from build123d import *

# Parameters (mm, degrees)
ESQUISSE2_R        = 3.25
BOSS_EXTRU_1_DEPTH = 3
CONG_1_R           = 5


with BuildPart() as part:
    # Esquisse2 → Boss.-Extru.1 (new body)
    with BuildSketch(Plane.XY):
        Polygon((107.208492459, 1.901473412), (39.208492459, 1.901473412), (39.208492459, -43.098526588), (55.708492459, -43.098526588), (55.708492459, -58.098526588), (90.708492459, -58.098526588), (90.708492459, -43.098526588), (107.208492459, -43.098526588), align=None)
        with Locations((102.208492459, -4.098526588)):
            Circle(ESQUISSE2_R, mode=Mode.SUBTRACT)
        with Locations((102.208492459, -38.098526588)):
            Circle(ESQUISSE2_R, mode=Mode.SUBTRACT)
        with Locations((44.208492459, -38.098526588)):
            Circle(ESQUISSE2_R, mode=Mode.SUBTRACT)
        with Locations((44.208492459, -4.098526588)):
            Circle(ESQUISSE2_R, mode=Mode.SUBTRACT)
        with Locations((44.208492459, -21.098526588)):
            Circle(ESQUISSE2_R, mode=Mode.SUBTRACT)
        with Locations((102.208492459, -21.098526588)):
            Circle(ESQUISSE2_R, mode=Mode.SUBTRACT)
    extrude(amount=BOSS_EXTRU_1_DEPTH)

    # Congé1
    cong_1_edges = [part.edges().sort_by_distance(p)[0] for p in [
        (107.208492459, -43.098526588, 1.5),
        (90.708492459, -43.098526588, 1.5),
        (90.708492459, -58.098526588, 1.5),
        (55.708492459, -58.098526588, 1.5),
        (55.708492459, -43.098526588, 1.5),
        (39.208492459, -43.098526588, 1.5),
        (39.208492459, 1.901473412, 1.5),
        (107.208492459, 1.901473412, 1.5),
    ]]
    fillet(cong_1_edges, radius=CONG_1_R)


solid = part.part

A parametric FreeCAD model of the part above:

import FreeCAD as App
import Part
import Sketcher

V = App.Vector
Q = App.Units.Quantity


def edges_at(feature, points):
    """Names of the edges that pass closest to the given points."""
    edges = feature.Shape.Edges
    near = lambda p: min(range(len(edges)), key=lambda i: edges[i].distToShape(Part.Vertex(*p))[0])
    return sorted({f"Edge{near(p) + 1}" for p in points})


def add_polygon(sketch, points):
    """Adds a closed chain of lines whose ends are joined by coincident constraints."""
    first, n = sketch.GeometryCount, len(points)
    for a, b in zip(points, points[1:] + points[:1]):
        sketch.addGeometry(Part.LineSegment(App.Vector(*a, 0), App.Vector(*b, 0)), False)
    for i in range(n):
        sketch.addConstraint(Sketcher.Constraint("Coincident", first + i, 2, first + (i + 1) % n, 1))

doc = App.newDocument("Part")
body = doc.addObject("PartDesign::Body", "Body")

# Sketch on XY plane
sketch1 = body.newObject("Sketcher::SketchObject", "Sketch")
sketch1.AttachmentSupport = (doc.getObject("XY_Plane"), [""])
sketch1.MapMode = "FlatFace"
add_polygon(sketch1, [(107.2, 1.9), (39.2, 1.9), (39.2, -43.1), (55.7, -43.1), (55.7, -58.1), (90.7, -58.1), (90.7, -43.1), (107.2, -43.1)])  # lines 0-7
sketch1.addGeometry(Part.Circle(V(44.2, -38.1, 0), V(0, 0, 1), 3.2), False)  # 8
sketch1.addGeometry(Part.Circle(V(102.2, -38.1, 0), V(0, 0, 1), 3.2), False)  # 9
sketch1.addGeometry(Part.Circle(V(44.2, -21.1, 0), V(0, 0, 1), 3.2), False)  # 10
sketch1.addGeometry(Part.Circle(V(44.2, -4.1, 0), V(0, 0, 1), 3.2), False)  # 11
sketch1.addGeometry(Part.Circle(V(102.2, -21.1, 0), V(0, 0, 1), 3.2), False)  # 12
sketch1.addGeometry(Part.Circle(V(102.2, -4.1, 0), V(0, 0, 1), 3.2), False)  # 13
sketch1.addConstraint([
    Sketcher.Constraint("Horizontal", 0),
    Sketcher.Constraint("Vertical", 1),
    Sketcher.Constraint("Horizontal", 2),
    Sketcher.Constraint("Vertical", 3),
    Sketcher.Constraint("Horizontal", 4),
    Sketcher.Constraint("Vertical", 5),
    Sketcher.Constraint("Horizontal", 6),
    Sketcher.Constraint("Vertical", 7),
    Sketcher.Constraint("Equal", 8, 9),
    Sketcher.Constraint("Equal", 9, 10),
    Sketcher.Constraint("Equal", 10, 11),
    Sketcher.Constraint("Equal", 11, 12),
    Sketcher.Constraint("Equal", 12, 13),
    Sketcher.Constraint("Horizontal", 8, 3, 9, 3),
    Sketcher.Constraint("Horizontal", 10, 3, 12, 3),
    Sketcher.Constraint("Horizontal", 11, 3, 13, 3),
    Sketcher.Constraint("Horizontal", 2, 2, 5, 2),
    Sketcher.Constraint("Vertical", 8, 3, 10, 3),
    Sketcher.Constraint("Vertical", 10, 3, 11, 3),
    Sketcher.Constraint("Vertical", 9, 3, 12, 3),
    Sketcher.Constraint("Vertical", 12, 3, 13, 3),
    Sketcher.Constraint("Equal", 2, 6),
    Sketcher.Constraint("Diameter", 8, Q("6.5 mm")),
    Sketcher.Constraint("DistanceX", 0, 2, 0, 1, Q("68 mm")),
    Sketcher.Constraint("DistanceX", 4, 1, 4, 2, Q("35 mm")),
    Sketcher.Constraint("DistanceY", 1, 2, 1, 1, Q("45 mm")),
    Sketcher.Constraint("DistanceY", 3, 2, 3, 1, Q("15 mm")),
    Sketcher.Constraint("DistanceX", 8, 3, 9, 3, Q("58 mm")),
    Sketcher.Constraint("DistanceY", 8, 3, 10, 3, Q("17 mm")),
    Sketcher.Constraint("DistanceY", 10, 3, 11, 3, Q("17 mm")),
    Sketcher.Constraint("DistanceX", 0, 2, 11, 3, Q("5 mm")),
    Sketcher.Constraint("DistanceY", 11, 3, 0, 2, Q("6 mm")),
    Sketcher.Constraint("DistanceX", -1, 1, 8, 3, Q("44.208492 mm")),
    Sketcher.Constraint("DistanceY", 8, 3, -1, 1, Q("38.098527 mm")),
])
pad1 = body.newObject("PartDesign::Pad", "Pad")
pad1.Profile = sketch1
pad1.Length = 3
doc.recompute()

fillet = body.newObject("PartDesign::Fillet", "Fillet")
fillet.Base = (pad1, edges_at(pad1, [
    (107.208, -43.099, 1.5),
    (90.708, -43.099, 1.5),
    (90.708, -58.099, 1.5),
    (55.708, -58.099, 1.5),
    (55.708, -43.099, 1.5),
    (39.208, -43.099, 1.5),
    (39.208, 1.901, 1.5),
    (107.208, 1.901, 1.5),
]))
fillet.Radius = 5

doc.recompute()
